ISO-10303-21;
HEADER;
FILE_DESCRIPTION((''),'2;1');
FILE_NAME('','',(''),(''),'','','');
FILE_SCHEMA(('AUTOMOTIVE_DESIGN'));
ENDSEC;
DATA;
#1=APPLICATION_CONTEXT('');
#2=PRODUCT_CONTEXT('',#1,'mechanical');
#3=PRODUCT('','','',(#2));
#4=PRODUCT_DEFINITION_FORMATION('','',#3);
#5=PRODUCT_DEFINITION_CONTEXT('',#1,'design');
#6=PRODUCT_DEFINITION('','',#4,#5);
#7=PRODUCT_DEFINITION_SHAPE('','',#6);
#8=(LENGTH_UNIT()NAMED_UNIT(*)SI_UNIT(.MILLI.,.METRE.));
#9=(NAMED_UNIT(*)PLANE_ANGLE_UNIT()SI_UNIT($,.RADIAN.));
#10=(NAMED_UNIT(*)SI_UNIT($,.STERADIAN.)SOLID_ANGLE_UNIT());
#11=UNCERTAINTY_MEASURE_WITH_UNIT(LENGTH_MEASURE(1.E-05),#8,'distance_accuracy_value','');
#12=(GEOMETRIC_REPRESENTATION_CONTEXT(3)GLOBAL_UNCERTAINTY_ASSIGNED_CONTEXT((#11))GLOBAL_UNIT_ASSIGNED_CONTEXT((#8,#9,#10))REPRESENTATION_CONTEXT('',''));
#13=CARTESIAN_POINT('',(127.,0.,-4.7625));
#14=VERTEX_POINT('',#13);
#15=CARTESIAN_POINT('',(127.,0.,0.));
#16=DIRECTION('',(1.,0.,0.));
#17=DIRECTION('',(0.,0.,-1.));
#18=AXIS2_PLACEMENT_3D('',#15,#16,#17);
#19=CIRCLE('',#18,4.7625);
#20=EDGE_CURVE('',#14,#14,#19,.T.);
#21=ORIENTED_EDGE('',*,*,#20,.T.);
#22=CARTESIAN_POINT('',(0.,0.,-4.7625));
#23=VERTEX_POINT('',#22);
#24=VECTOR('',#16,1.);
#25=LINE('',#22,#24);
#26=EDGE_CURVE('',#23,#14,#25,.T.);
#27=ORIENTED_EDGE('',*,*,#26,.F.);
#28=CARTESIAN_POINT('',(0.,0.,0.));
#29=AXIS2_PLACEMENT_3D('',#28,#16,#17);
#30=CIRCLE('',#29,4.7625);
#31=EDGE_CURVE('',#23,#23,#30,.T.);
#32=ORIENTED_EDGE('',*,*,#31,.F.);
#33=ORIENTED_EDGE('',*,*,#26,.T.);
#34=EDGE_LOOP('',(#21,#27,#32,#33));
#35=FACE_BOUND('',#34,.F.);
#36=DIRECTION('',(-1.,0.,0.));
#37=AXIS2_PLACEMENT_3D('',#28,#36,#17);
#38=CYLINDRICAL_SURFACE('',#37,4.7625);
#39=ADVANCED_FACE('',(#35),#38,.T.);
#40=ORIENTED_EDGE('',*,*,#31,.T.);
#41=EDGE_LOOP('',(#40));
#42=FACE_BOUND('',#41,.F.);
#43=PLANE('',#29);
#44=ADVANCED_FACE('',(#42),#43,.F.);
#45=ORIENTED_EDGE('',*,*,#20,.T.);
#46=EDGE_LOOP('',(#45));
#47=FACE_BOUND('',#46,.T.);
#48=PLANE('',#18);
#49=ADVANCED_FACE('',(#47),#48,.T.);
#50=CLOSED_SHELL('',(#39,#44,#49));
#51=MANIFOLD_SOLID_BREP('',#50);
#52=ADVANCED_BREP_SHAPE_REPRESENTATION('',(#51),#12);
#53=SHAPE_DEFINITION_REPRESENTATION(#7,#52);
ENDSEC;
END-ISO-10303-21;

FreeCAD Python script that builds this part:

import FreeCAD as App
import Part
import Sketcher
Q = App.Units.Quantity

doc = App.newDocument("Part")
body = doc.addObject("PartDesign::Body", "Body")

sketch1 = body.newObject("Sketcher::SketchObject", "Sketch")
sketch1.AttachmentSupport = (doc.getObject("YZ_Plane"), [""])
sketch1.MapMode = "FlatFace"
sketch1.addGeometry(Part.Circle(App.Vector(0, 0, 0), App.Vector(0, 0, 1), 4.7625), False)
sketch1.addConstraint(Sketcher.Constraint("Coincident", 0, 3, -1, 1))
sketch1.addConstraint(Sketcher.Constraint("Diameter", 0, Q("0.375 in")))
pad1 = body.newObject("PartDesign::Pad", "Pad")
pad1.Profile = sketch1
pad1.Length = Q("5 in")

doc.recompute()
